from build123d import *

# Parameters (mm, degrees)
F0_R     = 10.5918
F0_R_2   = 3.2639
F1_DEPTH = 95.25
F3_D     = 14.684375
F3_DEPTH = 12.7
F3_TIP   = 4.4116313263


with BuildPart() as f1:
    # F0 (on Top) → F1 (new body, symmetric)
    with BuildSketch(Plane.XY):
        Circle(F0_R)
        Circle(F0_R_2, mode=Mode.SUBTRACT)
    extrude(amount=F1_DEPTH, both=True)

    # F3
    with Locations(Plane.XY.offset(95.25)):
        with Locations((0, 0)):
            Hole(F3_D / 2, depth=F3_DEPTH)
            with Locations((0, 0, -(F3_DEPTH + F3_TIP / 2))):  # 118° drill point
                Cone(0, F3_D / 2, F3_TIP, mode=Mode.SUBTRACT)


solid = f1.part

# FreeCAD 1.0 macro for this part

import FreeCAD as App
import Part
import Sketcher
Q = App.Units.Quantity

doc = App.newDocument("Part")
body = doc.addObject("PartDesign::Body", "Body")

# Sketch on XY plane
sketch1 = body.newObject("Sketcher::SketchObject", "Sketch")
sketch1.AttachmentSupport = (doc.getObject("XY_Plane"), [""])
sketch1.MapMode = "FlatFace"
sketch1.addGeometry([
    Part.Circle(App.Vector(0, 0, 0), App.Vector(0, 0, 1), 10.5918),
    Part.Circle(App.Vector(0, 0, 0), App.Vector(0, 0, 1), 3.2639),
], False)
sketch1.addConstraint([
    Sketcher.Constraint("Coincident", 0, 3, -1, 1),
    Sketcher.Constraint("Coincident", 1, 3, -1, 1),
    Sketcher.Constraint("Diameter", 0, Q("0.834 in")),
    Sketcher.Constraint("Diameter", 1, Q("0.257 in")),
])
pad1 = body.newObject("PartDesign::Pad", "Pad")
pad1.Profile = sketch1
pad1.Length = Q("7.5 in")
pad1.Midplane = True

# Sketch on XY plane
sketch2 = body.newObject("Sketcher::SketchObject", "Sketch001")
sketch2.AttachmentSupport = (doc.getObject("XY_Plane"), [""])
sketch2.MapMode = "FlatFace"
sketch2.AttachmentOffset = App.Placement(App.Vector(0, 0, 3.75 * 25.4), App.Rotation())
sketch2.addGeometry(Part.Circle(App.Vector(0, 0, 0), App.Vector(0, 0, 1), 7.342187), False)
sketch2.addConstraint([
    Sketcher.Constraint("Coincident", 0, 3, -1, 1),
    Sketcher.Constraint("Diameter", 0, Q("0.578125 in")),
])
doc.recompute()
hole = body.newObject("PartDesign::Hole", "Hole")
hole.Profile = sketch2
hole.ThreadType = "None"
hole.Diameter = Q("0.578125 in")
hole.DepthType = "Dimension"
hole.Depth = Q("0.5 in")
hole.DrillPoint = "Angled"
hole.DrillPointAngle = 118

doc.recompute()
